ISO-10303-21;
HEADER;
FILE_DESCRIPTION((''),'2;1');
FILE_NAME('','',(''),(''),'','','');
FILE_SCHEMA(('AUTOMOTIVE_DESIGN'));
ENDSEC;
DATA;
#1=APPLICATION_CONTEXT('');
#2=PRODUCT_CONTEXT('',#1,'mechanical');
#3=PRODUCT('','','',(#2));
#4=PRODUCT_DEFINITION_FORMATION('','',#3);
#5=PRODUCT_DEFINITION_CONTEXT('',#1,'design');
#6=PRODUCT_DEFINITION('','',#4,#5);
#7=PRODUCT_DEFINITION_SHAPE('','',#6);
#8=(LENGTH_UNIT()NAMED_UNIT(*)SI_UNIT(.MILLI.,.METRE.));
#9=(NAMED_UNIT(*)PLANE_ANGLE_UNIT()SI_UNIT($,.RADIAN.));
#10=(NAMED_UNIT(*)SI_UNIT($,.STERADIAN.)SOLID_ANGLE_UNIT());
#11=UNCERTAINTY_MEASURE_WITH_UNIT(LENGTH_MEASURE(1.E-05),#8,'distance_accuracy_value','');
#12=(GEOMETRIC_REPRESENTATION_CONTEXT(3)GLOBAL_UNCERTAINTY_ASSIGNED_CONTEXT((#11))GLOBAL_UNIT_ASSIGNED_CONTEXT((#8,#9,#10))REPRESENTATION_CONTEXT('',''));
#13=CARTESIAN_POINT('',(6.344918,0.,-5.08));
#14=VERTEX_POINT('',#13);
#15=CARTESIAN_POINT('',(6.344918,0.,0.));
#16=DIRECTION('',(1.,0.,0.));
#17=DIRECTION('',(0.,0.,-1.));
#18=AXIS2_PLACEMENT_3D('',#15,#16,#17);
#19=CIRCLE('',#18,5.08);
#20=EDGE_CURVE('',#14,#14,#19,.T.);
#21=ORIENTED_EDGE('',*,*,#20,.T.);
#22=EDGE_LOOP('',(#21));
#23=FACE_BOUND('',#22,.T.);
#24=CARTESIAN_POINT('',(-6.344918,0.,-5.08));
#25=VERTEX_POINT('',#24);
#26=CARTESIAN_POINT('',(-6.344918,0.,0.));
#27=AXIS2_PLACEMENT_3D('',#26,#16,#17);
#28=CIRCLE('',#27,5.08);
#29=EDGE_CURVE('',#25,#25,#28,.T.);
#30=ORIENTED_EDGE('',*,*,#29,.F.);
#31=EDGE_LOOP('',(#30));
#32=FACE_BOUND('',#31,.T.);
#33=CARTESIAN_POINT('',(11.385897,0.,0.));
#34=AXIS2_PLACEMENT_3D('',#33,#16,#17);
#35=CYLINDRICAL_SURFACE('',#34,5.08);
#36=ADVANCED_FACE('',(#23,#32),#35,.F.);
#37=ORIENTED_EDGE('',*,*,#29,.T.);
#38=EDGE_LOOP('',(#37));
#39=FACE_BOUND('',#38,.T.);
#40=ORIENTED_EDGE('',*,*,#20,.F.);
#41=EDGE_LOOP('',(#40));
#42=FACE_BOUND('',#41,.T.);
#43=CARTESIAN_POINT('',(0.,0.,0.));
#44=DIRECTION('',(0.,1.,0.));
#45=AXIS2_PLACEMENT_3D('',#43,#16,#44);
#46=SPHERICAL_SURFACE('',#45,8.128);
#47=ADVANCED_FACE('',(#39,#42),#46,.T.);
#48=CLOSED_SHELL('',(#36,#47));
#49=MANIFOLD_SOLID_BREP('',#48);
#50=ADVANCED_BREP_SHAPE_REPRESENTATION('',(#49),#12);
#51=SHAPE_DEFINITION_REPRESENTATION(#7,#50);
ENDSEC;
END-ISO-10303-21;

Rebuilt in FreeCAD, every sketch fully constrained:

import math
import FreeCAD as App
import Part
import Sketcher
Q = App.Units.Quantity

doc = App.newDocument("Part")
params = doc.addObject("Spreadsheet::Sheet", "Params")
for row, (alias, value) in enumerate([
    ("sketch1_radius", "0.32 in"),
    ("revolution_angle", "360 deg"),
], start=1):
    params.set(f"A{row}", alias)
    params.set(f"B{row}", "=" + value)
    params.setAlias(f"B{row}", alias)

body = doc.addObject("PartDesign::Body", "Body")

# Sketch on XY plane
sketch1 = doc.addObject("Sketcher::SketchObject", "Sketch")
body.addObject(sketch1)
sketch1.AttachmentSupport = (doc.XY_Plane, [""])
sketch1.MapMode = "FlatFace"
sketch1.addGeometry(Part.LineSegment(App.Vector(-6, 5, 0), App.Vector(6, 5, 0)), False)
sketch1.addGeometry(Part.ArcOfCircle(Part.Circle(App.Vector(0, 0, 0), App.Vector(0, 0, 1), 8), math.radians(39), math.radians(141)), False)
sketch1.addConstraint(Sketcher.Constraint("Coincident", 0, 1, 1, 2))
sketch1.addConstraint(Sketcher.Constraint("Coincident", 1, 1, 0, 2))
sketch1.addConstraint(Sketcher.Constraint("Horizontal", 0))
sketch1.addConstraint(Sketcher.Constraint("Coincident", 1, 3, -1, 1))
sketch1.addConstraint(Sketcher.Constraint("Radius", 1, Q("0.32 in")))
sketch1.addConstraint(Sketcher.Constraint("DistanceY", -1, 1, 0, 1, Q("0.2 in")))
sketch1.setExpression("Constraints[4]", "Params.sketch1_radius")
revolution = doc.addObject("PartDesign::Revolution", "Revolution")
body.addObject(revolution)
revolution.Profile = sketch1
revolution.ReferenceAxis = (sketch1, ["H_Axis"])
revolution.setExpression("Angle", "Params.revolution_angle")

doc.recompute()
